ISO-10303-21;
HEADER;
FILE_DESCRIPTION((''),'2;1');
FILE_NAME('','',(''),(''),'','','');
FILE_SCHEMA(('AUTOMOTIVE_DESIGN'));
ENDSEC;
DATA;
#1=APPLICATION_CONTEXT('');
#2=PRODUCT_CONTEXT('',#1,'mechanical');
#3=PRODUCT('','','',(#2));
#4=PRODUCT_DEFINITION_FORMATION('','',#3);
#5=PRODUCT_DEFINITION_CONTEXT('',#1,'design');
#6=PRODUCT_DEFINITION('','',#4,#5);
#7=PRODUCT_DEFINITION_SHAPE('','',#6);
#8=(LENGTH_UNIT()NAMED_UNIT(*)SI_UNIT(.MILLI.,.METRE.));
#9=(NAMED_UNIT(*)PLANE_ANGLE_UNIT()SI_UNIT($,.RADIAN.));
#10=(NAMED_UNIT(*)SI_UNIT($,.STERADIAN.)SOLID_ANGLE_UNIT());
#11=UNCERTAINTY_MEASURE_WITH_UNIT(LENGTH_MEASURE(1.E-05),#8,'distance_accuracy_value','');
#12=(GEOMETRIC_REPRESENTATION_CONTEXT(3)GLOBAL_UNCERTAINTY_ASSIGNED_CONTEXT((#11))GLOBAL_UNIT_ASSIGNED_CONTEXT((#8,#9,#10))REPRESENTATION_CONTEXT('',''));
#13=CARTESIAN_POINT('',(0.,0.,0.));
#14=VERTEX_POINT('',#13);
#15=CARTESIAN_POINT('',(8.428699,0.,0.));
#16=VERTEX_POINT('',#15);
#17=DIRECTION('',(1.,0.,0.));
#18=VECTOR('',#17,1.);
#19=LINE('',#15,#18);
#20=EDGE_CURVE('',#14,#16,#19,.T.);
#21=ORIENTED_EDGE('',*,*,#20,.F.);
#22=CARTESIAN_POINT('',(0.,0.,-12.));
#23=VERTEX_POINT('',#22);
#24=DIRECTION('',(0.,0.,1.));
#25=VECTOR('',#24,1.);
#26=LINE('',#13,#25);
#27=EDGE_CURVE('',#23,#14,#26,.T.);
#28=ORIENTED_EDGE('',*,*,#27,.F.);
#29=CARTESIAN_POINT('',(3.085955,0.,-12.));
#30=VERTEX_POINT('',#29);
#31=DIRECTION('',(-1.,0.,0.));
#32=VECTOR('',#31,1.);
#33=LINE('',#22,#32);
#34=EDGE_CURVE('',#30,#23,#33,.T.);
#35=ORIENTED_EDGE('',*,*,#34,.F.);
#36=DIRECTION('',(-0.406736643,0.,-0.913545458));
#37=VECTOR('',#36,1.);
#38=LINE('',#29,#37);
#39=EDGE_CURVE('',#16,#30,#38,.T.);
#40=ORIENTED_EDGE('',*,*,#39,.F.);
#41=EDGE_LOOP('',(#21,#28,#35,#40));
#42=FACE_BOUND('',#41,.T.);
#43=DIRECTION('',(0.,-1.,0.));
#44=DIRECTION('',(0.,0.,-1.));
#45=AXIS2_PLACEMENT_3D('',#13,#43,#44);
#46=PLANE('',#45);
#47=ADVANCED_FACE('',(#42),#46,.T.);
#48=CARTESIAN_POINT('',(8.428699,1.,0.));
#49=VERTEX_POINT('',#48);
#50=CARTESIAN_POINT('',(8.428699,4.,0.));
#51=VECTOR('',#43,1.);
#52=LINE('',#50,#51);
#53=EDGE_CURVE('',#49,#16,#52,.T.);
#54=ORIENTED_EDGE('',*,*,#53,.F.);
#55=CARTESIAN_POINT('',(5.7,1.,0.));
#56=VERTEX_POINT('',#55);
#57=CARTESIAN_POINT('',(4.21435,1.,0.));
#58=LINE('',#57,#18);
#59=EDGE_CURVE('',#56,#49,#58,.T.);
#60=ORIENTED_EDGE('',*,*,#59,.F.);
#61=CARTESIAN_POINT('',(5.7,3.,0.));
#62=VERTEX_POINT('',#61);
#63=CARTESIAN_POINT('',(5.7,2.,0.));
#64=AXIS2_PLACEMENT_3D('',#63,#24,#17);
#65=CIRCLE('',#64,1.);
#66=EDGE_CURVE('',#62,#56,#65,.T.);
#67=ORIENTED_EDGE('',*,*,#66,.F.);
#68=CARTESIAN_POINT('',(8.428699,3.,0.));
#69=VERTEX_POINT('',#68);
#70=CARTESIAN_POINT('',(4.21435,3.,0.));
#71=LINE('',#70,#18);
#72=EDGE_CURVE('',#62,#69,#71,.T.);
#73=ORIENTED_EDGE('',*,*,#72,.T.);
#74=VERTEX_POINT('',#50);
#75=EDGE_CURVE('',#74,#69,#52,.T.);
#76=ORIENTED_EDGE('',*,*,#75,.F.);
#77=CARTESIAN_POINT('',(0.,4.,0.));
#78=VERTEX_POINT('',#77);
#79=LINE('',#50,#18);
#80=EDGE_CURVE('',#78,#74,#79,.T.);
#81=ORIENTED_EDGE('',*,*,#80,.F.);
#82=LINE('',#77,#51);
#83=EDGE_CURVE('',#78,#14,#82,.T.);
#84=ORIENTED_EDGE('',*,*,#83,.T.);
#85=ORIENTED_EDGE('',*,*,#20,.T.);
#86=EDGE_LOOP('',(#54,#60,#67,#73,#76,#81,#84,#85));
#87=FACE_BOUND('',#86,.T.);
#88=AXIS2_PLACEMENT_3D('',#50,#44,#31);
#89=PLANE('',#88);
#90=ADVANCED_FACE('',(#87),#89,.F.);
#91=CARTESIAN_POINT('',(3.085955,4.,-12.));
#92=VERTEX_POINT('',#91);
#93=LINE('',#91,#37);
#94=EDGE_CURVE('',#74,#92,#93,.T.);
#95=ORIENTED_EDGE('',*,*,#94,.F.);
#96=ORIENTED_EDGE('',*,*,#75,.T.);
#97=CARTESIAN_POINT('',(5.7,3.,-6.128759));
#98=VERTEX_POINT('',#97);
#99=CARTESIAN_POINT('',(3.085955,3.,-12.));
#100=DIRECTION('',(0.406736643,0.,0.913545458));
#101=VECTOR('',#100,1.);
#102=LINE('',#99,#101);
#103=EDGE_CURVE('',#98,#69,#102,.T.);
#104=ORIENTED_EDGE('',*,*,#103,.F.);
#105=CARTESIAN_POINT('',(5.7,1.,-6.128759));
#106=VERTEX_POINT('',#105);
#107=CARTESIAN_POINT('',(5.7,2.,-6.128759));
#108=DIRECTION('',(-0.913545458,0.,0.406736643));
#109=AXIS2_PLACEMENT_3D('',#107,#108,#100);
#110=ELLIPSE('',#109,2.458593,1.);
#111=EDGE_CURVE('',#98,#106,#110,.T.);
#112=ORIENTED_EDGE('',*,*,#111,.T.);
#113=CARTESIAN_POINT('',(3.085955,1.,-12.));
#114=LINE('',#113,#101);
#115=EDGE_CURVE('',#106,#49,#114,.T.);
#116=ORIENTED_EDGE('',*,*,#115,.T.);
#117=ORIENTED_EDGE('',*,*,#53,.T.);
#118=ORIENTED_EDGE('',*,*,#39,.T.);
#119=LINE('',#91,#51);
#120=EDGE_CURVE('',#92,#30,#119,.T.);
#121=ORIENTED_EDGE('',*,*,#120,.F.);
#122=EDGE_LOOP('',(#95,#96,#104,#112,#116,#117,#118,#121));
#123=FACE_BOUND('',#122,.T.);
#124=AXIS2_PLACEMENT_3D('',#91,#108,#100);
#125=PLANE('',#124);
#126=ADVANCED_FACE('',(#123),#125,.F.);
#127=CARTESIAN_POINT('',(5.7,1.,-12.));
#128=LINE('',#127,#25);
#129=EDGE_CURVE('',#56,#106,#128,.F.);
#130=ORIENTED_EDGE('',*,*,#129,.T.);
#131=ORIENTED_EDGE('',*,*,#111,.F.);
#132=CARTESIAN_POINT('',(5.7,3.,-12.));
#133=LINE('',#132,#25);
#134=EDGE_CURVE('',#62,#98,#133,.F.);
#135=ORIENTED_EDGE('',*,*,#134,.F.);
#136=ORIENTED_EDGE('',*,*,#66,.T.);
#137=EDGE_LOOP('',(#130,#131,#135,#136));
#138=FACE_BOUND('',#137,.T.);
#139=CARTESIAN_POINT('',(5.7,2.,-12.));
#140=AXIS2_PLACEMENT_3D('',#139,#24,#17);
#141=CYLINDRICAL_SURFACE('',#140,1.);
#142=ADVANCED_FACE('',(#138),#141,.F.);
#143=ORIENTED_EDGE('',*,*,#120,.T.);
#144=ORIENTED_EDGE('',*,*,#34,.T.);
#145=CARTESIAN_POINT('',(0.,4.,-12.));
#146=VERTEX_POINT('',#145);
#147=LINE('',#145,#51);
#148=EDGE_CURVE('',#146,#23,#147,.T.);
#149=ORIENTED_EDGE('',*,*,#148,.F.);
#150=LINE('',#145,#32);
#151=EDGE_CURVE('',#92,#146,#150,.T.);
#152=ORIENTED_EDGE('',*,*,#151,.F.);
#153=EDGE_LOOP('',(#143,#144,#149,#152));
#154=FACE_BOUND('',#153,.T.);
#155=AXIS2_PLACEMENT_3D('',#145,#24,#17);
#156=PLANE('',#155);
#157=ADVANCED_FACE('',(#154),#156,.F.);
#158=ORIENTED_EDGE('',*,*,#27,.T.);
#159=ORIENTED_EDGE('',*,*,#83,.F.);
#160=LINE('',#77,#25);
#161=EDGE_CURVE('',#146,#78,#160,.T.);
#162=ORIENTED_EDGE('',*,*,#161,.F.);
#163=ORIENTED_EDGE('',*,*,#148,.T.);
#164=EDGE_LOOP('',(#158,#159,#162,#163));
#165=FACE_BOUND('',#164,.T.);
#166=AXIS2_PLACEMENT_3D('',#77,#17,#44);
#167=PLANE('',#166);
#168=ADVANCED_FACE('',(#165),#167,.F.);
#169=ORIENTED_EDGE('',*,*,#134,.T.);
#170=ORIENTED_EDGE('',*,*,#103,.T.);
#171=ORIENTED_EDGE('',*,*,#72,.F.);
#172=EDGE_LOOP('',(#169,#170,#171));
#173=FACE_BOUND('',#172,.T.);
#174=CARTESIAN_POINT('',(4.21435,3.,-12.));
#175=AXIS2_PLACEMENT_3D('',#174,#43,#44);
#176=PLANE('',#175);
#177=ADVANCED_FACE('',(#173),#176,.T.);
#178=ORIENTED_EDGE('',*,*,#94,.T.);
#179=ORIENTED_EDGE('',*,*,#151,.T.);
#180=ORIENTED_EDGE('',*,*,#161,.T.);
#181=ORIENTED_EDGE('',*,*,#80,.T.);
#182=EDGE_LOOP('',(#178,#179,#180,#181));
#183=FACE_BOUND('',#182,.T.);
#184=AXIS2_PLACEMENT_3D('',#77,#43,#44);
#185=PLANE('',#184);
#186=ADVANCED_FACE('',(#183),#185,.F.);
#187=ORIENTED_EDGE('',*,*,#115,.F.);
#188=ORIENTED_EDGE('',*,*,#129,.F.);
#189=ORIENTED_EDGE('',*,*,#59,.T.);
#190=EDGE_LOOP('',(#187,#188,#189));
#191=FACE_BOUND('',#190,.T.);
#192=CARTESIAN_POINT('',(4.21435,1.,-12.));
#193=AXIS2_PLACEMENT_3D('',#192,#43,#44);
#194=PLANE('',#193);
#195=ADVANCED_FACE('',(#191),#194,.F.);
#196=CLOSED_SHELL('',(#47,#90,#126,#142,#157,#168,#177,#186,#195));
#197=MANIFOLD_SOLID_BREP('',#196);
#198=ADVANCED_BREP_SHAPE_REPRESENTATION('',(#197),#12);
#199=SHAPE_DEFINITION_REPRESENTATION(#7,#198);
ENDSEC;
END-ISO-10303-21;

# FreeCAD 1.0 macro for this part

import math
import FreeCAD as App
import Part
import Sketcher
from FreeCAD import Vector
Q = App.Units.Quantity


def add_polygon(sketch, points):
    """Adds a closed chain of lines whose ends are joined by coincident constraints."""
    first, n = sketch.GeometryCount, len(points)
    for a, b in zip(points, points[1:] + points[:1]):
        sketch.addGeometry(Part.LineSegment(App.Vector(*a, 0), App.Vector(*b, 0)), False)
    for i in range(n):
        sketch.addConstraint(Sketcher.Constraint("Coincident", first + i, 2, first + (i + 1) % n, 1))

doc = App.newDocument("Part")
body = doc.addObject("PartDesign::Body", "Body")

# Sketch on XZ plane
sketch1 = doc.addObject("Sketcher::SketchObject", "Sketch")
body.addObject(sketch1)
sketch1.AttachmentSupport = (doc.XZ_Plane, [""])
sketch1.MapMode = "FlatFace"
add_polygon(sketch1, [(0, -12), (0, 0), (8.4, 0), (3.1, -12)])  # lines 0-3
sketch1.addConstraint(Sketcher.Constraint("Vertical", 0))
sketch1.addConstraint(Sketcher.Constraint("Horizontal", 1))
sketch1.addConstraint(Sketcher.Constraint("Horizontal", 3))
sketch1.addConstraint(Sketcher.Constraint("Coincident", 0, 2, -1, 1))
sketch1.addConstraint(Sketcher.Constraint("DistanceY", 0, 1, 0, 2, Q("12 mm")))
sketch1.addConstraint(Sketcher.Constraint("Angle", 2, Q("-114 deg")))
sketch1.addConstraint(Sketcher.Constraint("DistanceX", 1, 1, 1, 2, Q("8.428699 mm")))
pad1 = doc.addObject("PartDesign::Pad", "Pad")
body.addObject(pad1)
pad1.Profile = sketch1
pad1.Length = 4
pad1.Reversed = True

# Sketch on XY plane
sketch2 = doc.addObject("Sketcher::SketchObject", "Sketch001")
body.addObject(sketch2)
sketch2.AttachmentSupport = (doc.XY_Plane, [""])
sketch2.MapMode = "FlatFace"
sketch2.addGeometry(Part.Circle(Vector(5.7, 2, 0), Vector(0, 0, 1), 1), False)
sketch2.addConstraint(Sketcher.Constraint("Diameter", 0, Q("2 mm")))
sketch2.addConstraint(Sketcher.Constraint("DistanceY", -1, 1, 0, 3, Q("2 mm")))
sketch2.addConstraint(Sketcher.Constraint("DistanceX", -1, 1, 0, 3, Q("5.7 mm")))
pocket1 = doc.addObject("PartDesign::Pocket", "Pocket")
body.addObject(pocket1)
pocket1.Profile = sketch2
pocket1.Type = "ThroughAll"

# Sketch on XY plane
sketch3 = doc.addObject("Sketcher::SketchObject", "Sketch002")
body.addObject(sketch3)
sketch3.AttachmentSupport = (doc.XY_Plane, [""])
sketch3.MapMode = "FlatFace"
sketch3.addGeometry(Part.LineSegment(Vector(8.4, 3, 0), Vector(5.7, 3, 0)), False)
sketch3.addGeometry(Part.ArcOfCircle(Part.Circle(Vector(5.7, 2, 0), Vector(0, 0, 1), 1), math.radians(0), math.radians(90)), False)
sketch3.addGeometry(Part.ArcOfCircle(Part.Circle(Vector(5.7, 2, 0), Vector(0, 0, 1), 1), math.radians(-90), math.radians(0)), False)
sketch3.addGeometry(Part.LineSegment(Vector(5.7, 1, 0), Vector(8.4, 1, 0)), False)
sketch3.addGeometry(Part.LineSegment(Vector(8.4, 1, 0), Vector(8.4, 3, 0)), False)
sketch3.addConstraint(Sketcher.Constraint("Tangent", 0, 2, 1, 2))
sketch3.addConstraint(Sketcher.Constraint("Tangent", 1, 1, 2, 2))
sketch3.addConstraint(Sketcher.Constraint("Tangent", 2, 1, 3, 1))
sketch3.addConstraint(Sketcher.Constraint("Coincident", 3, 2, 4, 1))
sketch3.addConstraint(Sketcher.Constraint("Coincident", 4, 2, 0, 1))
sketch3.addConstraint(Sketcher.Constraint("Horizontal", 0))
sketch3.addConstraint(Sketcher.Constraint("Horizontal", 3))
sketch3.addConstraint(Sketcher.Constraint("Vertical", 4))
sketch3.addConstraint(Sketcher.Constraint("Equal", 1, 2))
sketch3.addConstraint(Sketcher.Constraint("Horizontal", 2, 3, 1, 1))
sketch3.addConstraint(Sketcher.Constraint("Radius", 1, Q("1 mm")))
sketch3.addConstraint(Sketcher.Constraint("DistanceY", -1, 1, 1, 3, Q("2 mm")))
sketch3.addConstraint(Sketcher.Constraint("DistanceX", -1, 1, 1, 3, Q("5.7 mm")))
sketch3.addConstraint(Sketcher.Constraint("DistanceX", 0, 2, 0, 1, Q("2.728699 mm")))
pocket2 = doc.addObject("PartDesign::Pocket", "Pocket001")
body.addObject(pocket2)
pocket2.Profile = sketch3
pocket2.Type = "ThroughAll"

doc.recompute()
